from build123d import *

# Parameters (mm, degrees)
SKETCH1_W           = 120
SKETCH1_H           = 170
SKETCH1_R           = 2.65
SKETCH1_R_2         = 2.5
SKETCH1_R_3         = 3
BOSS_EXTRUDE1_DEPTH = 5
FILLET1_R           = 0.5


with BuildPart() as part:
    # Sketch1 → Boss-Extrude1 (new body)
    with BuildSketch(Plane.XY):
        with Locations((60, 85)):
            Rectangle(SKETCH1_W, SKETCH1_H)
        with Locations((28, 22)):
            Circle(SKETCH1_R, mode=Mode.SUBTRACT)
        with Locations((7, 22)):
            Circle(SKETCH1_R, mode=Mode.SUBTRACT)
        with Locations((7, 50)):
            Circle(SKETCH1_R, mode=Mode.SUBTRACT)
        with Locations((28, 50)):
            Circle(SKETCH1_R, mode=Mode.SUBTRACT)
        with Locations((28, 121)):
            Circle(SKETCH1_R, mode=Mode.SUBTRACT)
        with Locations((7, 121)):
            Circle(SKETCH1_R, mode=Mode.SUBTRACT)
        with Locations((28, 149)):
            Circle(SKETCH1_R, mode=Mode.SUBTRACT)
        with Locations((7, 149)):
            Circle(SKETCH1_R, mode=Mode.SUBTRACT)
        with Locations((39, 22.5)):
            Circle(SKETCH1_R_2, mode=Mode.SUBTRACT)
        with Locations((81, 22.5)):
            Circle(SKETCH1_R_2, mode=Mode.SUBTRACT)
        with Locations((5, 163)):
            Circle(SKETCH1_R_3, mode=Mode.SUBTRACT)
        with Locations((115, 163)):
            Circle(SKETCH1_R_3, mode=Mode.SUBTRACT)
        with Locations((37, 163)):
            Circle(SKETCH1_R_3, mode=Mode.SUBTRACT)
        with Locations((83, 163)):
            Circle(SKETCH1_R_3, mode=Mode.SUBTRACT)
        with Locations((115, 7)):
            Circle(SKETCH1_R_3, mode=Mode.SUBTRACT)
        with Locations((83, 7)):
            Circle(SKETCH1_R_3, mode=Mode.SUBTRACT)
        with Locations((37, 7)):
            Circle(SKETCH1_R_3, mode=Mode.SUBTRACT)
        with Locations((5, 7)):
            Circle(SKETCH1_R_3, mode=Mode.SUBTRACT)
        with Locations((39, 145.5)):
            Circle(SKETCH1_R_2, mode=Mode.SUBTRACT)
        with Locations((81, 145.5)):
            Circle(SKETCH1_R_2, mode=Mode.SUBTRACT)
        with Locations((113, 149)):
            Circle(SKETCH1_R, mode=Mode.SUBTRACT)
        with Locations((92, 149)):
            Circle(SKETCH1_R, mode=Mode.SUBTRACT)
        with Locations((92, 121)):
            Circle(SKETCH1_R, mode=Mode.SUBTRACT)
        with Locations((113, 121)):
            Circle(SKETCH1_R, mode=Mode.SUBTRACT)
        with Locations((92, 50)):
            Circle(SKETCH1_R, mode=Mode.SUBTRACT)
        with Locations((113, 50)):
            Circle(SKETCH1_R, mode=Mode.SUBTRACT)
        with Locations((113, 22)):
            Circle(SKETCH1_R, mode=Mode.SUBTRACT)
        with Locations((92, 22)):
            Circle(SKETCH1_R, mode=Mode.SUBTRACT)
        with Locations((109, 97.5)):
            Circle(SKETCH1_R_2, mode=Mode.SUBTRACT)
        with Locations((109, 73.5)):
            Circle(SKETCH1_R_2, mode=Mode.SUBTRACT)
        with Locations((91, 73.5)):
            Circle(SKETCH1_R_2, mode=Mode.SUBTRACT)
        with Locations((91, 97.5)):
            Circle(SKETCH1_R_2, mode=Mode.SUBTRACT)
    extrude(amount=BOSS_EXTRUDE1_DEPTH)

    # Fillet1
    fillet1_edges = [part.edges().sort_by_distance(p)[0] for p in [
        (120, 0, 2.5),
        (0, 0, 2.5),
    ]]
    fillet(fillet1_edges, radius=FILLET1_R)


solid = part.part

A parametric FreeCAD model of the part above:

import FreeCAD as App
import Part
import Sketcher

V = App.Vector
Q = App.Units.Quantity


def edges_at(feature, points):
    """Names of the edges that pass closest to the given points."""
    edges = feature.Shape.Edges
    near = lambda p: min(range(len(edges)), key=lambda i: edges[i].distToShape(Part.Vertex(*p))[0])
    return sorted({f"Edge{near(p) + 1}" for p in points})

doc = App.newDocument("Part")
body = doc.addObject("PartDesign::Body", "Body")

# Sketch on XY plane
sketch1 = body.newObject("Sketcher::SketchObject", "Sketch")
sketch1.AttachmentSupport = (doc.getObject("XY_Plane"), [""])
sketch1.MapMode = "FlatFace"
sketch1.addGeometry([
    Part.LineSegment(V(0, 170, 0), V(0, 0, 0)),  # 0
    Part.LineSegment(V(0, 0, 0), V(120, 0, 0)),  # 1
    Part.LineSegment(V(120, 0, 0), V(120, 170, 0)),  # 2
    Part.LineSegment(V(120, 170, 0), V(0, 170, 0)),  # 3
    Part.Circle(V(5, 7, 0), V(0, 0, 1), 3),  # 4
    Part.Circle(V(7, 22, 0), V(0, 0, 1), 2.6),  # 5
    Part.Circle(V(28, 22, 0), V(0, 0, 1), 2.6),  # 6
    Part.Circle(V(37, 7, 0), V(0, 0, 1), 3),  # 7
    Part.Circle(V(39, 22.5, 0), V(0, 0, 1), 2.5),  # 8
    Part.Circle(V(7, 50, 0), V(0, 0, 1), 2.6),  # 9
    Part.Circle(V(28, 50, 0), V(0, 0, 1), 2.6),  # 10
    Part.Circle(V(83, 7, 0), V(0, 0, 1), 3),  # 11
    Part.Circle(V(81, 22.5, 0), V(0, 0, 1), 2.5),  # 12
    Part.Circle(V(92, 22, 0), V(0, 0, 1), 2.6),  # 13
    Part.Circle(V(115, 7, 0), V(0, 0, 1), 3),  # 14
    Part.Circle(V(113, 22, 0), V(0, 0, 1), 2.6),  # 15
    Part.Circle(V(92, 50, 0), V(0, 0, 1), 2.6),  # 16
    Part.Circle(V(113, 50, 0), V(0, 0, 1), 2.6),  # 17
    Part.Circle(V(91, 73.5, 0), V(0, 0, 1), 2.5),  # 18
    Part.Circle(V(109, 73.5, 0), V(0, 0, 1), 2.5),  # 19
    Part.Circle(V(7, 121, 0), V(0, 0, 1), 2.6),  # 20
    Part.Circle(V(28, 121, 0), V(0, 0, 1), 2.6),  # 21
    Part.Circle(V(7, 149, 0), V(0, 0, 1), 2.6),  # 22
    Part.Circle(V(5, 163, 0), V(0, 0, 1), 3),  # 23
    Part.Circle(V(28, 149, 0), V(0, 0, 1), 2.6),  # 24
    Part.Circle(V(39, 145.5, 0), V(0, 0, 1), 2.5),  # 25
    Part.Circle(V(37, 163, 0), V(0, 0, 1), 3),  # 26
    Part.Circle(V(91, 97.5, 0), V(0, 0, 1), 2.5),  # 27
    Part.Circle(V(109, 97.5, 0), V(0, 0, 1), 2.5),  # 28
    Part.Circle(V(92, 121, 0), V(0, 0, 1), 2.6),  # 29
    Part.Circle(V(113, 121, 0), V(0, 0, 1), 2.6),  # 30
    Part.Circle(V(81, 145.5, 0), V(0, 0, 1), 2.5),  # 31
    Part.Circle(V(83, 163, 0), V(0, 0, 1), 3),  # 32
    Part.Circle(V(92, 149, 0), V(0, 0, 1), 2.6),  # 33
    Part.Circle(V(113, 149, 0), V(0, 0, 1), 2.6),  # 34
    Part.Circle(V(115, 163, 0), V(0, 0, 1), 3),  # 35
], False)
sketch1.addConstraint([
    Sketcher.Constraint("Coincident", 0, 2, 1, 1),
    Sketcher.Constraint("Coincident", 1, 2, 2, 1),
    Sketcher.Constraint("Coincident", 2, 2, 3, 1),
    Sketcher.Constraint("Coincident", 3, 2, 0, 1),
    Sketcher.Constraint("Vertical", 0),
    Sketcher.Constraint("Horizontal", 1),
    Sketcher.Constraint("Vertical", 2),
    Sketcher.Constraint("Horizontal", 3),
    Sketcher.Constraint("Coincident", 0, 2, -1, 1),
    Sketcher.Constraint("Equal", 5, 6),
    Sketcher.Constraint("Equal", 4, 7),
    Sketcher.Constraint("Equal", 6, 9),
    Sketcher.Constraint("Equal", 9, 10),
    Sketcher.Constraint("Equal", 7, 11),
    Sketcher.Constraint("Equal", 8, 12),
    Sketcher.Constraint("Equal", 10, 13),
    Sketcher.Constraint("Equal", 11, 14),
    Sketcher.Constraint("Equal", 13, 15),
    Sketcher.Constraint("Equal", 15, 16),
    Sketcher.Constraint("Equal", 16, 17),
    Sketcher.Constraint("Equal", 12, 18),
    Sketcher.Constraint("Equal", 18, 19),
    Sketcher.Constraint("Equal", 17, 20),
    Sketcher.Constraint("Equal", 20, 21),
    Sketcher.Constraint("Equal", 21, 22),
    Sketcher.Constraint("Equal", 14, 23),
    Sketcher.Constraint("Equal", 22, 24),
    Sketcher.Constraint("Equal", 19, 25),
    Sketcher.Constraint("Equal", 23, 26),
    Sketcher.Constraint("Equal", 25, 27),
    Sketcher.Constraint("Equal", 27, 28),
    Sketcher.Constraint("Equal", 24, 29),
    Sketcher.Constraint("Equal", 29, 30),
    Sketcher.Constraint("Equal", 28, 31),
    Sketcher.Constraint("Equal", 26, 32),
    Sketcher.Constraint("Equal", 30, 33),
    Sketcher.Constraint("Equal", 33, 34),
    Sketcher.Constraint("Equal", 32, 35),
    Sketcher.Constraint("Horizontal", 5, 3, 6, 3),
    Sketcher.Constraint("Horizontal", 4, 3, 7, 3),
    Sketcher.Constraint("Horizontal", 9, 3, 10, 3),
    Sketcher.Constraint("Horizontal", 7, 3, 11, 3),
    Sketcher.Constraint("Horizontal", 8, 3, 12, 3),
    Sketcher.Constraint("Horizontal", 6, 3, 13, 3),
    Sketcher.Constraint("Horizontal", 11, 3, 14, 3),
    Sketcher.Constraint("Horizontal", 13, 3, 15, 3),
    Sketcher.Constraint("Horizontal", 10, 3, 16, 3),
    Sketcher.Constraint("Horizontal", 16, 3, 17, 3),
    Sketcher.Constraint("Horizontal", 18, 3, 19, 3),
    Sketcher.Constraint("Horizontal", 20, 3, 21, 3),
    Sketcher.Constraint("Horizontal", 22, 3, 24, 3),
    Sketcher.Constraint("Horizontal", 23, 3, 26, 3),
    Sketcher.Constraint("Horizontal", 27, 3, 28, 3),
    Sketcher.Constraint("Horizontal", 21, 3, 29, 3),
    Sketcher.Constraint("Horizontal", 29, 3, 30, 3),
    Sketcher.Constraint("Horizontal", 25, 3, 31, 3),
    Sketcher.Constraint("Horizontal", 26, 3, 32, 3),
    Sketcher.Constraint("Horizontal", 24, 3, 33, 3),
    Sketcher.Constraint("Horizontal", 33, 3, 34, 3),
    Sketcher.Constraint("Horizontal", 32, 3, 35, 3),
    Sketcher.Constraint("Vertical", 5, 3, 9, 3),
    Sketcher.Constraint("Vertical", 6, 3, 10, 3),
    Sketcher.Constraint("Vertical", 13, 3, 16, 3),
    Sketcher.Constraint("Vertical", 15, 3, 17, 3),
    Sketcher.Constraint("Vertical", 9, 3, 20, 3),
    Sketcher.Constraint("Vertical", 10, 3, 21, 3),
    Sketcher.Constraint("Vertical", 20, 3, 22, 3),
    Sketcher.Constraint("Vertical", 4, 3, 23, 3),
    Sketcher.Constraint("Vertical", 21, 3, 24, 3),
    Sketcher.Constraint("Vertical", 8, 3, 25, 3),
    Sketcher.Constraint("Vertical", 7, 3, 26, 3),
    Sketcher.Constraint("Vertical", 18, 3, 27, 3),
    Sketcher.Constraint("Vertical", 19, 3, 28, 3),
    Sketcher.Constraint("Vertical", 16, 3, 29, 3),
    Sketcher.Constraint("Vertical", 17, 3, 30, 3),
    Sketcher.Constraint("Vertical", 12, 3, 31, 3),
    Sketcher.Constraint("Vertical", 11, 3, 32, 3),
    Sketcher.Constraint("Vertical", 29, 3, 33, 3),
    Sketcher.Constraint("Vertical", 30, 3, 34, 3),
    Sketcher.Constraint("Vertical", 14, 3, 35, 3),
    Sketcher.Constraint("Diameter", 4, Q("6 mm")),
    Sketcher.Constraint("Diameter", 8, Q("5 mm")),
    Sketcher.Constraint("Diameter", 5, Q("5.3 mm")),
    Sketcher.Constraint("DistanceX", 1, 1, 1, 2, Q("120 mm")),
    Sketcher.Constraint("DistanceY", 0, 2, 0, 1, Q("170 mm")),
    Sketcher.Constraint("DistanceX", -1, 1, 4, 3, Q("5 mm")),
    Sketcher.Constraint("DistanceY", -1, 1, 4, 3, Q("7 mm")),
    Sketcher.Constraint("DistanceX", -1, 1, 5, 3, Q("7 mm")),
    Sketcher.Constraint("DistanceY", -1, 1, 5, 3, Q("22 mm")),
    Sketcher.Constraint("DistanceX", -1, 1, 6, 3, Q("28 mm")),
    Sketcher.Constraint("DistanceX", -1, 1, 7, 3, Q("37 mm")),
    Sketcher.Constraint("DistanceX", -1, 1, 8, 3, Q("39 mm")),
    Sketcher.Constraint("DistanceY", -1, 1, 9, 3, Q("50 mm")),
    Sketcher.Constraint("DistanceX", -1, 1, 11, 3, Q("83 mm")),
    Sketcher.Constraint("DistanceX", -1, 1, 12, 3, Q("81 mm")),
    Sketcher.Constraint("DistanceX", -1, 1, 13, 3, Q("92 mm")),
    Sketcher.Constraint("DistanceX", -1, 1, 14, 3, Q("115 mm")),
    Sketcher.Constraint("DistanceX", -1, 1, 15, 3, Q("113 mm")),
    Sketcher.Constraint("DistanceX", -1, 1, 18, 3, Q("91 mm")),
    Sketcher.Constraint("DistanceX", -1, 1, 19, 3, Q("109 mm")),
    Sketcher.Constraint("DistanceY", -1, 1, 20, 3, Q("121 mm")),
    Sketcher.Constraint("DistanceY", -1, 1, 22, 3, Q("149 mm")),
    Sketcher.Constraint("DistanceY", -1, 1, 23, 3, Q("163 mm")),
    Sketcher.Constraint("DistanceY", 12, 3, 18, 3, Q("51 mm")),
    Sketcher.Constraint("DistanceY", 18, 3, 27, 3, Q("24 mm")),
    Sketcher.Constraint("DistanceY", 27, 3, 31, 3, Q("48 mm")),
    Sketcher.Constraint("DistanceY", -1, 1, 8, 3, Q("22.5 mm")),
])
pad1 = body.newObject("PartDesign::Pad", "Pad")
pad1.Profile = sketch1
pad1.Length = 5
doc.recompute()

fillet = body.newObject("PartDesign::Fillet", "Fillet")
fillet.Base = (pad1, edges_at(pad1, [(120, 0, 2.5), (0, 0, 2.5)]))
fillet.Radius = 0.5

doc.recompute()
